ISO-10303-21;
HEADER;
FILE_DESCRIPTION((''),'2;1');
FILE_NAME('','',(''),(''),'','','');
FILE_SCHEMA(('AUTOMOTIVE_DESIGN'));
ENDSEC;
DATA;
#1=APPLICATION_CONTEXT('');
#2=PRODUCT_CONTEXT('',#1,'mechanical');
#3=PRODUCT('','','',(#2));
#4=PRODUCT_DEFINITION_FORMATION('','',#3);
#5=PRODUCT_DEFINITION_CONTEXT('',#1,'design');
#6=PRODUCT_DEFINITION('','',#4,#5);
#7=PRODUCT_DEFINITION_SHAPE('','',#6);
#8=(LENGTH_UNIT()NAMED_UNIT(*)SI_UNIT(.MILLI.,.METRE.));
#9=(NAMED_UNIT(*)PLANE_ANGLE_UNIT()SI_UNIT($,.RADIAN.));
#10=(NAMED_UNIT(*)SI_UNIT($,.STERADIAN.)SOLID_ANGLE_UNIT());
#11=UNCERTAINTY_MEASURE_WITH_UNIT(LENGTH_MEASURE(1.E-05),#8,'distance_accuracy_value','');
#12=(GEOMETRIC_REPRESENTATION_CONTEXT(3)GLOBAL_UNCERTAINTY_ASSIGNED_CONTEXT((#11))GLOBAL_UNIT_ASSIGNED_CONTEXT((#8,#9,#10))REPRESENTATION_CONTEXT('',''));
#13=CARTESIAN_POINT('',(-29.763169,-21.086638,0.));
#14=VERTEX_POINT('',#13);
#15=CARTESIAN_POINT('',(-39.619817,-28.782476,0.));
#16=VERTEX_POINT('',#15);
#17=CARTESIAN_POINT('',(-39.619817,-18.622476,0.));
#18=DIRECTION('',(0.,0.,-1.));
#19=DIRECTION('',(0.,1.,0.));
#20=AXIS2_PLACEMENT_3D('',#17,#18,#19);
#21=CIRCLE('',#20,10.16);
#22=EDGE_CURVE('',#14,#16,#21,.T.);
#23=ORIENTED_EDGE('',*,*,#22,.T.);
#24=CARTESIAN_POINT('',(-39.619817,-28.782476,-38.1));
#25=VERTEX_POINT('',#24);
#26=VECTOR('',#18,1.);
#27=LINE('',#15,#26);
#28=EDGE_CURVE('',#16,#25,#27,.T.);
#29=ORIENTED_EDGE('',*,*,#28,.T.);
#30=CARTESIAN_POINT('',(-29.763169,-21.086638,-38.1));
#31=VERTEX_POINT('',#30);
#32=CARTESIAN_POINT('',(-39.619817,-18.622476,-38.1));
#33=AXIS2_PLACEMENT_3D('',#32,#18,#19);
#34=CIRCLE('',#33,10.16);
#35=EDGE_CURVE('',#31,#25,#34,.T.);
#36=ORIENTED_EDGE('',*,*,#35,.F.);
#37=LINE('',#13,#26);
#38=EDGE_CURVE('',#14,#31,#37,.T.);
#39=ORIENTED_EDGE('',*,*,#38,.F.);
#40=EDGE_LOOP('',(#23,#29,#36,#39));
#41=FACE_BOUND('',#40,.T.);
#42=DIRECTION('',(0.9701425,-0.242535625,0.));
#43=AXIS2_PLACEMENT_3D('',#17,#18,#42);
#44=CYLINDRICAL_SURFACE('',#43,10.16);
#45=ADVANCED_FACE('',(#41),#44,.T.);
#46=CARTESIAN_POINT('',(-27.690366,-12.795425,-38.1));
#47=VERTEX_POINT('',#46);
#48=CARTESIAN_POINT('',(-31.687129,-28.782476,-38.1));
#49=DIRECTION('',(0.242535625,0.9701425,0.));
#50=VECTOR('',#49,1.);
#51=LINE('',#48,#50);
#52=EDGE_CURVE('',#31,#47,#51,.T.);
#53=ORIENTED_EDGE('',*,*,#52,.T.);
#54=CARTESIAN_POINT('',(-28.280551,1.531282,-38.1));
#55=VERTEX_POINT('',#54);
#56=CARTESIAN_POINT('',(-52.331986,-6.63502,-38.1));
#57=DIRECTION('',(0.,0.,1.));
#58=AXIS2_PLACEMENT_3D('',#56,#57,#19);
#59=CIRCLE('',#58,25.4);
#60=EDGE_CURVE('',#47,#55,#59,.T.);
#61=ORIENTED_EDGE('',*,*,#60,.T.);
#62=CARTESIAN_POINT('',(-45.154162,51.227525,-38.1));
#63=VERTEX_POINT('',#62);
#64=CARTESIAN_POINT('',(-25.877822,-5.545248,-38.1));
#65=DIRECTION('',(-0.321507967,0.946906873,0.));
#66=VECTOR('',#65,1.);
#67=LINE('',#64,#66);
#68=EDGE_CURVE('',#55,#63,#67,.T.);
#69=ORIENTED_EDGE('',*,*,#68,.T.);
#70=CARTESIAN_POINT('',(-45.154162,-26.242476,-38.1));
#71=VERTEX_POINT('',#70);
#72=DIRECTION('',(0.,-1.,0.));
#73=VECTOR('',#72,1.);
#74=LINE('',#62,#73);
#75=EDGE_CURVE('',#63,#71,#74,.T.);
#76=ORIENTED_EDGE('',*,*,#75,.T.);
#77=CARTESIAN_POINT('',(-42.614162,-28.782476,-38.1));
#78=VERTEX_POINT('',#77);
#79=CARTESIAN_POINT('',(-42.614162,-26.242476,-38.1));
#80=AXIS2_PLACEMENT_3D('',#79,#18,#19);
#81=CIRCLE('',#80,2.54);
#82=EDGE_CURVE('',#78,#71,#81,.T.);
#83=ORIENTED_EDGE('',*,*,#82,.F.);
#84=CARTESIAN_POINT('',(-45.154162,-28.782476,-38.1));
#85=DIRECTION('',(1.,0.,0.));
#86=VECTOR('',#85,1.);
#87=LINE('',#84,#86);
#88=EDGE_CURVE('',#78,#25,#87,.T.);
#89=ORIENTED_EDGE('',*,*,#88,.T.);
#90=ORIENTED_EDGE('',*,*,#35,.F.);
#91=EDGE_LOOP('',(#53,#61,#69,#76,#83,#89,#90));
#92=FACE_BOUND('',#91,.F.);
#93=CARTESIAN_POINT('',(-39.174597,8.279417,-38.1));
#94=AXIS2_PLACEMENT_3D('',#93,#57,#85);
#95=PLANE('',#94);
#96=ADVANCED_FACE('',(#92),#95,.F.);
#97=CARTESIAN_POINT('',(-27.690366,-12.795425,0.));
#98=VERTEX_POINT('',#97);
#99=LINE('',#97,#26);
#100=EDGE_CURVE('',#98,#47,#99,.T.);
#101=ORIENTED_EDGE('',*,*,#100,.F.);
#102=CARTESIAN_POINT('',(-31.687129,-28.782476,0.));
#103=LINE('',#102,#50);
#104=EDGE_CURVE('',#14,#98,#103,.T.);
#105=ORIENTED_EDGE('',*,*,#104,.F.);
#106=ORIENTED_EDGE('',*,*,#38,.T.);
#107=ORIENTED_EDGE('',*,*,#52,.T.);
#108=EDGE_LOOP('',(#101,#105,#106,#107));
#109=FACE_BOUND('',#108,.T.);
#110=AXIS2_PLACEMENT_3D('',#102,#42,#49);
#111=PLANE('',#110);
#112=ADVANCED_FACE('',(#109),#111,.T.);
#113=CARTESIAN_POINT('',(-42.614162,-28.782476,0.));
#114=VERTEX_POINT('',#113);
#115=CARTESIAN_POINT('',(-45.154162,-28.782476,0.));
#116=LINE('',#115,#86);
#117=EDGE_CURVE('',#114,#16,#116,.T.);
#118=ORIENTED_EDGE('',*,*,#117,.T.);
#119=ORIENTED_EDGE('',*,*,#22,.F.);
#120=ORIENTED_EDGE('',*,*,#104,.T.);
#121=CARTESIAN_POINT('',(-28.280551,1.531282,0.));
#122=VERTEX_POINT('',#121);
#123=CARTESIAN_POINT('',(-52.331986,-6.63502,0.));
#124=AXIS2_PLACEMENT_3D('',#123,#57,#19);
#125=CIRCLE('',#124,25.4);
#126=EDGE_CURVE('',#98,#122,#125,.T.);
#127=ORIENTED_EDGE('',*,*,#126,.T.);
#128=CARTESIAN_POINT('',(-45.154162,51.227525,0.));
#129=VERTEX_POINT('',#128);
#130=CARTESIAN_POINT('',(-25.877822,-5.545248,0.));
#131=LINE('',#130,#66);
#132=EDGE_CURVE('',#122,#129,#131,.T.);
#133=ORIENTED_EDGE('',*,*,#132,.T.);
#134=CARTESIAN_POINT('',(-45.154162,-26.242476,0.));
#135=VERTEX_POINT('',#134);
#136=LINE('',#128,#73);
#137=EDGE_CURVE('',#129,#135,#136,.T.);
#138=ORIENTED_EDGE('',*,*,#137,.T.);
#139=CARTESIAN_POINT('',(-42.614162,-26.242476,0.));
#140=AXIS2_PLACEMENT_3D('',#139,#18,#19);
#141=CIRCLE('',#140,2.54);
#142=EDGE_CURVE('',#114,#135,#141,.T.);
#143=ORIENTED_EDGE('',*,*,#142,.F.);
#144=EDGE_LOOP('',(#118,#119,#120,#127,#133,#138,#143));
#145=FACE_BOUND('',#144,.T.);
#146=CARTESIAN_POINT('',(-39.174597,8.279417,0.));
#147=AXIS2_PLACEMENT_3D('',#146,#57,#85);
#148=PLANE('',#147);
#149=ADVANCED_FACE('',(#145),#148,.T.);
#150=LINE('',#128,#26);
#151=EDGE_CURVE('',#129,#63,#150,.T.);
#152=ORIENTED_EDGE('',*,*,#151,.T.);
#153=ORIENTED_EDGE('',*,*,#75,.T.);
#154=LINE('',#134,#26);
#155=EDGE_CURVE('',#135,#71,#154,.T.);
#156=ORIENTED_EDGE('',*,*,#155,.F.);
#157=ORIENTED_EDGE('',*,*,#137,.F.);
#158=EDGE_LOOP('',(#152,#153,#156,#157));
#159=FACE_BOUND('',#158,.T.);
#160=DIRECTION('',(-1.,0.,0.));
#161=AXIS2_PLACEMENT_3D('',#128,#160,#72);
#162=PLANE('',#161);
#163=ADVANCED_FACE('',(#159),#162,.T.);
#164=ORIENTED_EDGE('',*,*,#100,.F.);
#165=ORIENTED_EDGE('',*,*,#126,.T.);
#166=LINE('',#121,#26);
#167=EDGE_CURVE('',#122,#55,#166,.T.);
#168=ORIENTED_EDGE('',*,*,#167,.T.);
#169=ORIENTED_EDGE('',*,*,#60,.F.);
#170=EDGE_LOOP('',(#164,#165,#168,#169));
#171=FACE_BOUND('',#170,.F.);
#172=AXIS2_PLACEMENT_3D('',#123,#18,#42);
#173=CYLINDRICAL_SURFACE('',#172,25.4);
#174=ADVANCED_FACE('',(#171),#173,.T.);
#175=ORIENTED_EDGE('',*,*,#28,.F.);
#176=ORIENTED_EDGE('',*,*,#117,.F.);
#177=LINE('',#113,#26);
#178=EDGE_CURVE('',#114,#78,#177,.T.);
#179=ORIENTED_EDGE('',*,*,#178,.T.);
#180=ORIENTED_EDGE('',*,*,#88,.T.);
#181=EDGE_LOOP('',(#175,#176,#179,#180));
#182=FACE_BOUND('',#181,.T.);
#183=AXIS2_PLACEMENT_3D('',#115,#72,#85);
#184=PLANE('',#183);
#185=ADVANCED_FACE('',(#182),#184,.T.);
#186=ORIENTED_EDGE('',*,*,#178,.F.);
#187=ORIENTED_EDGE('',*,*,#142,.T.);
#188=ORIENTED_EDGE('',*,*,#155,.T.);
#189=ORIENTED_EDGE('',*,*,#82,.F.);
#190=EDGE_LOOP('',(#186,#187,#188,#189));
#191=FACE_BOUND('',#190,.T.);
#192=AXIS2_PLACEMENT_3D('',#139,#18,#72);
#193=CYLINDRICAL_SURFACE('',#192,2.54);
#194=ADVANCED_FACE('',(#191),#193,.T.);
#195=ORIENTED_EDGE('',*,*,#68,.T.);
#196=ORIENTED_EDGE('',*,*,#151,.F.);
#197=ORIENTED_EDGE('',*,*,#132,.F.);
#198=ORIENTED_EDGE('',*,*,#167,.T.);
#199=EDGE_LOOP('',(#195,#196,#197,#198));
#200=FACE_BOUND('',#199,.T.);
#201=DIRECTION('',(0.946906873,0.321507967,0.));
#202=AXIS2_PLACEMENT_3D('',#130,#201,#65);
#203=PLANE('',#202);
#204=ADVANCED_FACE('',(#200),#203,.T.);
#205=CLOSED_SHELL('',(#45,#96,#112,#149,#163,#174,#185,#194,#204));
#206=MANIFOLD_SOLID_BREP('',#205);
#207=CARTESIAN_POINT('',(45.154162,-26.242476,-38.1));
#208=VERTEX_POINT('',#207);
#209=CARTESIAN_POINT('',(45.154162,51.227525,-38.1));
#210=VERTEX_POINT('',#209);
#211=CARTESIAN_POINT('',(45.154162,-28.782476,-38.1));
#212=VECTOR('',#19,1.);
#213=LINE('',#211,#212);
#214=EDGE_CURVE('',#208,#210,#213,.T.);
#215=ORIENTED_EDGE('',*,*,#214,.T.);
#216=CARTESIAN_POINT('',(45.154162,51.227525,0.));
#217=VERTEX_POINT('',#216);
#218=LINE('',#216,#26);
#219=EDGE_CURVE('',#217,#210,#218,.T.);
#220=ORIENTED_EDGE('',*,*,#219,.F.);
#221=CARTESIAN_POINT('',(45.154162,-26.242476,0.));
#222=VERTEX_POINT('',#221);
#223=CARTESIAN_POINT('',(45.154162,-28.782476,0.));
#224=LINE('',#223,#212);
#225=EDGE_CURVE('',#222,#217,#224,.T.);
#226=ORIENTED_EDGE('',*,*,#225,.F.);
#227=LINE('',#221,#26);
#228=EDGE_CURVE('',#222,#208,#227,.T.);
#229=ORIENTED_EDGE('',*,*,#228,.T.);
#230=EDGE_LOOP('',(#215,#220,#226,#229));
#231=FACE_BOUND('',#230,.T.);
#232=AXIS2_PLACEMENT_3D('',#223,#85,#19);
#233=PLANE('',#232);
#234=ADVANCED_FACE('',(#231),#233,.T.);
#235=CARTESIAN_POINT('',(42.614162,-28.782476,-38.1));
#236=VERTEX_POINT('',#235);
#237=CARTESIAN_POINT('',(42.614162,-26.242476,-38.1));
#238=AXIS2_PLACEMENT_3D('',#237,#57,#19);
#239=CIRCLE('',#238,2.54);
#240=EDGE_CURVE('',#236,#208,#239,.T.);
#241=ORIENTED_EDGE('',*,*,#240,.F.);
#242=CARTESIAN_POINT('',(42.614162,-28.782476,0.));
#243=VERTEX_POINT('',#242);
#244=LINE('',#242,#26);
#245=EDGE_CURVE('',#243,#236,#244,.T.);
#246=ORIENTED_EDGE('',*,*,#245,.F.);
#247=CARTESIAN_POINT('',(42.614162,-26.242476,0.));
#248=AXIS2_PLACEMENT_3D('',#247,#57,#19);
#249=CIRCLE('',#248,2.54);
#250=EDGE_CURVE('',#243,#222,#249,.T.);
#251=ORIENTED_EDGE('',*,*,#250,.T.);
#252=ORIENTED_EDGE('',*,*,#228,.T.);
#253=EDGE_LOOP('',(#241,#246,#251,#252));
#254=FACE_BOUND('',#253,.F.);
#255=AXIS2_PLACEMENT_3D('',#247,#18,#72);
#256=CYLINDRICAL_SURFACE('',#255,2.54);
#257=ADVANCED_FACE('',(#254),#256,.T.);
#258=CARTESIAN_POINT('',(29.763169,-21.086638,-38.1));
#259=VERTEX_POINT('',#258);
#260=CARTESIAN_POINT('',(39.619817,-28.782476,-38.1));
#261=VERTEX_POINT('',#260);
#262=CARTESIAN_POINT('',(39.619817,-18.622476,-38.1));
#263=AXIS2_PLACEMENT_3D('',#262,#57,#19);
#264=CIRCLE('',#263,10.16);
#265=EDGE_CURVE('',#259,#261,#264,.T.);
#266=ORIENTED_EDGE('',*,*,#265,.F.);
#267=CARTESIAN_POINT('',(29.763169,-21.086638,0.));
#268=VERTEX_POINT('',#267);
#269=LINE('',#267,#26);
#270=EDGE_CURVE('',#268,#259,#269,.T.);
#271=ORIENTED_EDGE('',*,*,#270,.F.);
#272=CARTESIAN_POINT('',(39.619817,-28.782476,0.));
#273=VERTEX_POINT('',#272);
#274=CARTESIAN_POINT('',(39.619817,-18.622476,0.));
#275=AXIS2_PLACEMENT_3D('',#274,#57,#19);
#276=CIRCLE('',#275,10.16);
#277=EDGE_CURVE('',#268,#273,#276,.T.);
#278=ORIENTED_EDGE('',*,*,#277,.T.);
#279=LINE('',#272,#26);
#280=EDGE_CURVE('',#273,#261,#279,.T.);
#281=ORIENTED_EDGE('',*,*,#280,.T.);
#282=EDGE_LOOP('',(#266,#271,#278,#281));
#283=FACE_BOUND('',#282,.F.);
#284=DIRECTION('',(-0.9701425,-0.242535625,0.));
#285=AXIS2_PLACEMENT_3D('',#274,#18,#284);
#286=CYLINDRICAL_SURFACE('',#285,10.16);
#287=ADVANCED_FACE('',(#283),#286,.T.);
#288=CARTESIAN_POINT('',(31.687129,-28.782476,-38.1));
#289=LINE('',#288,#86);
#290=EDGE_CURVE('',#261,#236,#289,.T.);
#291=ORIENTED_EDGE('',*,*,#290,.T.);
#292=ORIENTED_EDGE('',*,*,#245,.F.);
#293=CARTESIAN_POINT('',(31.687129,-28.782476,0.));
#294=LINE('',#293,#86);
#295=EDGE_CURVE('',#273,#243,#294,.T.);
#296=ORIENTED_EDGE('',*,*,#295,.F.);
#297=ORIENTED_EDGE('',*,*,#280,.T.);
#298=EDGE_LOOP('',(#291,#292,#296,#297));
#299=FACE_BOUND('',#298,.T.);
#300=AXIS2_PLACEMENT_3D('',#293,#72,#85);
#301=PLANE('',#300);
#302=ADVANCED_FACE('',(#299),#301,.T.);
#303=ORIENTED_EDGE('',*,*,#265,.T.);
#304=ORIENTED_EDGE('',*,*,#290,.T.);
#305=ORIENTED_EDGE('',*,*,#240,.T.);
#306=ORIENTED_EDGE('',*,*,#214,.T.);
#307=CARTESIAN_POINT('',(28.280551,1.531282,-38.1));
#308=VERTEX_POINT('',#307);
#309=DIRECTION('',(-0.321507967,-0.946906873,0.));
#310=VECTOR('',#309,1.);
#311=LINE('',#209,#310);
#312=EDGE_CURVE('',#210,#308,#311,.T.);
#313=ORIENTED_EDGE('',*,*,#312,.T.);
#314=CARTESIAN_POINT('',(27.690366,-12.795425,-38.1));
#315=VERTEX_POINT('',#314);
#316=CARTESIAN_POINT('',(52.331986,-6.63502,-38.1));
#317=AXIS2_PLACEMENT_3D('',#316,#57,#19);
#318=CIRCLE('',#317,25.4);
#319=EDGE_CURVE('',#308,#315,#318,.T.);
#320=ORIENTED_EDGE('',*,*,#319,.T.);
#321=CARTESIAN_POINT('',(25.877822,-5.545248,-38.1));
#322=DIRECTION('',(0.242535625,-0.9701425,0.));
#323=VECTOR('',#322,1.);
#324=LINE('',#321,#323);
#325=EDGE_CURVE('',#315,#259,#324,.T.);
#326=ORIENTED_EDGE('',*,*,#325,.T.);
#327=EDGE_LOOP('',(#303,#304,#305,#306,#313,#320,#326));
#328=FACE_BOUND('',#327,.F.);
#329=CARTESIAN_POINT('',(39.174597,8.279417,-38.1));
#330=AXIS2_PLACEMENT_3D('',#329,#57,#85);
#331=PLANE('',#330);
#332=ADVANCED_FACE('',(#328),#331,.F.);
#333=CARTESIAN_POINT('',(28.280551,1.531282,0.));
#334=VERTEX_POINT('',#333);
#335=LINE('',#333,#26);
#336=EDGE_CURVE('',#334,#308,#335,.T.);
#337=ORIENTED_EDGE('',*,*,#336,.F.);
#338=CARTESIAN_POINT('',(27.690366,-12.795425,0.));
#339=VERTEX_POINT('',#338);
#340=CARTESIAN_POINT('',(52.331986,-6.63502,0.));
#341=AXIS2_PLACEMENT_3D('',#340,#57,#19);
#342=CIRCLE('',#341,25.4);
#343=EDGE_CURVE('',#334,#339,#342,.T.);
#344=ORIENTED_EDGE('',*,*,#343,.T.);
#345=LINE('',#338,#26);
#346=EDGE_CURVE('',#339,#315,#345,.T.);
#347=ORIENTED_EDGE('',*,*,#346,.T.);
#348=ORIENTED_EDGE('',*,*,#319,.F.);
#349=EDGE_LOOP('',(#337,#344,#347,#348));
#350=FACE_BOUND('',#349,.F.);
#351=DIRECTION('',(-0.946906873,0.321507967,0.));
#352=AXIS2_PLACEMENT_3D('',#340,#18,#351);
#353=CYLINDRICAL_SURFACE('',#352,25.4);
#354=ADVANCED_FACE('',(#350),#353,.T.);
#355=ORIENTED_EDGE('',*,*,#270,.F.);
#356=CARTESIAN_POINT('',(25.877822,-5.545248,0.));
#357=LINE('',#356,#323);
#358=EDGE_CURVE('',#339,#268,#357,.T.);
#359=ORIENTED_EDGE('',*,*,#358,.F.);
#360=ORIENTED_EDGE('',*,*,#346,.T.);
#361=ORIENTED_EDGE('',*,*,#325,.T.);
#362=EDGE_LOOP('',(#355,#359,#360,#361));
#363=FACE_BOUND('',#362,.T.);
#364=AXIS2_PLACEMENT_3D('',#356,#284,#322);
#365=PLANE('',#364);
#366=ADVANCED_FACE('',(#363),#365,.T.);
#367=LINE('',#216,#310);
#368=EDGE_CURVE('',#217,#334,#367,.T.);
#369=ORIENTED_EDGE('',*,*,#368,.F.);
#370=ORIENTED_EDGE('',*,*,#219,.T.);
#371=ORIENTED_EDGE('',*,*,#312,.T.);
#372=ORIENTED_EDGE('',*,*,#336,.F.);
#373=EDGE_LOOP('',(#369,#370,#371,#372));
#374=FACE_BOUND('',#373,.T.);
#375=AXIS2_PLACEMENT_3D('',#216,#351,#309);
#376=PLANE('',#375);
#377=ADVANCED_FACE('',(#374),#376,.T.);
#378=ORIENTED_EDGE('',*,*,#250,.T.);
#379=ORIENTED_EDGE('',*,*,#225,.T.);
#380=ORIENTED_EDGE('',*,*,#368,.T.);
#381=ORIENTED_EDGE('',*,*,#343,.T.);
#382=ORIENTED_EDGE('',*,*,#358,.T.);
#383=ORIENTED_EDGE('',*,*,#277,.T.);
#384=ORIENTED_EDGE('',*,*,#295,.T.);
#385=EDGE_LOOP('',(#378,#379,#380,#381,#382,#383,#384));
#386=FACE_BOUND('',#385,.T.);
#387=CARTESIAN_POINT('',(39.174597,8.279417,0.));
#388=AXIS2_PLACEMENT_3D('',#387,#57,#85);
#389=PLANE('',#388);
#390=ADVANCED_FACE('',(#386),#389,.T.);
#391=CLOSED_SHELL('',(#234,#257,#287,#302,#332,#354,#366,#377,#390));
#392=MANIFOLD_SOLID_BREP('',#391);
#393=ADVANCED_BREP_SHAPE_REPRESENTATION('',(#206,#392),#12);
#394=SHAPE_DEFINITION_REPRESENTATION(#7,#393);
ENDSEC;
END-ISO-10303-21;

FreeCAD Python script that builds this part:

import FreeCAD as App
import Part
import Sketcher

V = App.Vector
Q = App.Units.Quantity


def edges_at(feature, points):
    """Names of the edges that pass closest to the given points."""
    edges = feature.Shape.Edges
    near = lambda p: min(range(len(edges)), key=lambda i: edges[i].distToShape(Part.Vertex(*p))[0])
    return sorted({f"Edge{near(p) + 1}" for p in points})

doc = App.newDocument("Part")
params = doc.addObject("Spreadsheet::Sheet", "Params")
for row, (alias, value) in enumerate([
    ("sketch1_height", "3.15 in"),
    ("pad1_length", "1.5 in"),
    ("fillet_radius", "1 in"),
    ("fillet2_radius", "0.4 in"),
    ("fillet3_radius", "0.1 in"),
    ("fillet4_radius", "1 in"),
    ("fillet5_radius", "0.4 in"),
    ("fillet6_radius", "0.1 in"),
], start=1):
    params.set(f"A{row}", alias)
    params.set(f"B{row}", "=" + value)
    params.setAlias(f"B{row}", alias)

body = doc.addObject("PartDesign::Body", "Body")
body.AllowCompound = True

# Sketch on XY plane
sketch1 = body.newObject("Sketcher::SketchObject", "Sketch")
sketch1.AttachmentSupport = (doc.getObject("XY_Plane"), [""])
sketch1.MapMode = "FlatFace"
sketch1.addGeometry(Part.LineSegment(V(-45, 51, 0), V(-45, -29, 0)), False)
sketch1.addGeometry(Part.LineSegment(V(-45, -29, 0), V(-32, -29, 0)), False)
sketch1.addGeometry(Part.LineSegment(V(-32, -29, 0), V(-26, -6, 0)), False)
sketch1.addGeometry(Part.LineSegment(V(-26, -6, 0), V(-45, 51, 0)), False)
sketch1.addGeometry(Part.LineSegment(V(45, -29, 0), V(45, 51, 0)), False)
sketch1.addGeometry(Part.LineSegment(V(45, 51, 0), V(26, -6, 0)), False)
sketch1.addGeometry(Part.LineSegment(V(26, -6, 0), V(32, -29, 0)), False)
sketch1.addGeometry(Part.LineSegment(V(32, -29, 0), V(45, -29, 0)), False)
sketch1.addConstraint(Sketcher.Constraint("Coincident", 0, 2, 1, 1))
sketch1.addConstraint(Sketcher.Constraint("Coincident", 1, 2, 2, 1))
sketch1.addConstraint(Sketcher.Constraint("Coincident", 2, 2, 3, 1))
sketch1.addConstraint(Sketcher.Constraint("Coincident", 3, 2, 0, 1))
sketch1.addConstraint(Sketcher.Constraint("Coincident", 4, 2, 5, 1))
sketch1.addConstraint(Sketcher.Constraint("Coincident", 5, 2, 6, 1))
sketch1.addConstraint(Sketcher.Constraint("Coincident", 6, 2, 7, 1))
sketch1.addConstraint(Sketcher.Constraint("Coincident", 7, 2, 4, 1))
sketch1.addConstraint(Sketcher.Constraint("Vertical", 0))
sketch1.addConstraint(Sketcher.Constraint("Horizontal", 1))
sketch1.addConstraint(Sketcher.Constraint("Vertical", 4))
sketch1.addConstraint(Sketcher.Constraint("Horizontal", 7))
sketch1.addConstraint(Sketcher.Constraint("Symmetric", 3, 2, 4, 2, -2))
sketch1.addConstraint(Sketcher.Constraint("Symmetric", 2, 2, 5, 2, -2))
sketch1.addConstraint(Sketcher.Constraint("Symmetric", 1, 2, 6, 2, -2))
sketch1.addConstraint(Sketcher.Constraint("DistanceY", 0, 2, 0, 1, Q("3.15 in")))
sketch1.addConstraint(Sketcher.Constraint("DistanceX", 1, 1, 1, 2, Q("13.467033 mm")))
sketch1.addConstraint(Sketcher.Constraint("DistanceX", 1, 2, -1, 1, Q("31.687129 mm")))
sketch1.addConstraint(Sketcher.Constraint("DistanceX", 2, 2, -1, 1, Q("25.877822 mm")))
sketch1.addConstraint(Sketcher.Constraint("Distance", 2, Q("23.952386 mm")))
sketch1.addConstraint(Sketcher.Constraint("DistanceY", 0, 2, -1, 1, Q("28.782476 mm")))
sketch1.setExpression("Constraints[15]", "Params.sketch1_height")
pad1 = body.newObject("PartDesign::Pad", "Pad")
pad1.Profile = sketch1
pad1.setExpression("Length", "Params.pad1_length")
pad1.Reversed = True
doc.recompute()

fillet = body.newObject("PartDesign::Fillet", "Fillet")
fillet.Base = (pad1, edges_at(pad1, [(25.878, -5.545, -19.05)]))
fillet.setExpression("Radius", "Params.fillet_radius")
doc.recompute()

fillet2 = body.newObject("PartDesign::Fillet", "Fillet001")
fillet2.Base = (fillet, edges_at(fillet, [(31.687, -28.782, -19.05)]))
fillet2.setExpression("Radius", "Params.fillet2_radius")
doc.recompute()

fillet3 = body.newObject("PartDesign::Fillet", "Fillet002")
fillet3.Base = (fillet2, edges_at(fillet2, [(45.154, -28.782, -19.05)]))
fillet3.setExpression("Radius", "Params.fillet3_radius")
doc.recompute()

fillet4 = body.newObject("PartDesign::Fillet", "Fillet003")
fillet4.Base = (fillet3, edges_at(fillet3, [(-25.878, -5.545, -19.05)]))
fillet4.setExpression("Radius", "Params.fillet4_radius")
doc.recompute()

fillet5 = body.newObject("PartDesign::Fillet", "Fillet004")
fillet5.Base = (fillet4, edges_at(fillet4, [(-31.687, -28.782, -19.05)]))
fillet5.setExpression("Radius", "Params.fillet5_radius")
doc.recompute()

fillet6 = body.newObject("PartDesign::Fillet", "Fillet005")
fillet6.Base = (fillet5, edges_at(fillet5, [(-45.154, -28.782, -19.05)]))
fillet6.setExpression("Radius", "Params.fillet6_radius")

doc.recompute()
